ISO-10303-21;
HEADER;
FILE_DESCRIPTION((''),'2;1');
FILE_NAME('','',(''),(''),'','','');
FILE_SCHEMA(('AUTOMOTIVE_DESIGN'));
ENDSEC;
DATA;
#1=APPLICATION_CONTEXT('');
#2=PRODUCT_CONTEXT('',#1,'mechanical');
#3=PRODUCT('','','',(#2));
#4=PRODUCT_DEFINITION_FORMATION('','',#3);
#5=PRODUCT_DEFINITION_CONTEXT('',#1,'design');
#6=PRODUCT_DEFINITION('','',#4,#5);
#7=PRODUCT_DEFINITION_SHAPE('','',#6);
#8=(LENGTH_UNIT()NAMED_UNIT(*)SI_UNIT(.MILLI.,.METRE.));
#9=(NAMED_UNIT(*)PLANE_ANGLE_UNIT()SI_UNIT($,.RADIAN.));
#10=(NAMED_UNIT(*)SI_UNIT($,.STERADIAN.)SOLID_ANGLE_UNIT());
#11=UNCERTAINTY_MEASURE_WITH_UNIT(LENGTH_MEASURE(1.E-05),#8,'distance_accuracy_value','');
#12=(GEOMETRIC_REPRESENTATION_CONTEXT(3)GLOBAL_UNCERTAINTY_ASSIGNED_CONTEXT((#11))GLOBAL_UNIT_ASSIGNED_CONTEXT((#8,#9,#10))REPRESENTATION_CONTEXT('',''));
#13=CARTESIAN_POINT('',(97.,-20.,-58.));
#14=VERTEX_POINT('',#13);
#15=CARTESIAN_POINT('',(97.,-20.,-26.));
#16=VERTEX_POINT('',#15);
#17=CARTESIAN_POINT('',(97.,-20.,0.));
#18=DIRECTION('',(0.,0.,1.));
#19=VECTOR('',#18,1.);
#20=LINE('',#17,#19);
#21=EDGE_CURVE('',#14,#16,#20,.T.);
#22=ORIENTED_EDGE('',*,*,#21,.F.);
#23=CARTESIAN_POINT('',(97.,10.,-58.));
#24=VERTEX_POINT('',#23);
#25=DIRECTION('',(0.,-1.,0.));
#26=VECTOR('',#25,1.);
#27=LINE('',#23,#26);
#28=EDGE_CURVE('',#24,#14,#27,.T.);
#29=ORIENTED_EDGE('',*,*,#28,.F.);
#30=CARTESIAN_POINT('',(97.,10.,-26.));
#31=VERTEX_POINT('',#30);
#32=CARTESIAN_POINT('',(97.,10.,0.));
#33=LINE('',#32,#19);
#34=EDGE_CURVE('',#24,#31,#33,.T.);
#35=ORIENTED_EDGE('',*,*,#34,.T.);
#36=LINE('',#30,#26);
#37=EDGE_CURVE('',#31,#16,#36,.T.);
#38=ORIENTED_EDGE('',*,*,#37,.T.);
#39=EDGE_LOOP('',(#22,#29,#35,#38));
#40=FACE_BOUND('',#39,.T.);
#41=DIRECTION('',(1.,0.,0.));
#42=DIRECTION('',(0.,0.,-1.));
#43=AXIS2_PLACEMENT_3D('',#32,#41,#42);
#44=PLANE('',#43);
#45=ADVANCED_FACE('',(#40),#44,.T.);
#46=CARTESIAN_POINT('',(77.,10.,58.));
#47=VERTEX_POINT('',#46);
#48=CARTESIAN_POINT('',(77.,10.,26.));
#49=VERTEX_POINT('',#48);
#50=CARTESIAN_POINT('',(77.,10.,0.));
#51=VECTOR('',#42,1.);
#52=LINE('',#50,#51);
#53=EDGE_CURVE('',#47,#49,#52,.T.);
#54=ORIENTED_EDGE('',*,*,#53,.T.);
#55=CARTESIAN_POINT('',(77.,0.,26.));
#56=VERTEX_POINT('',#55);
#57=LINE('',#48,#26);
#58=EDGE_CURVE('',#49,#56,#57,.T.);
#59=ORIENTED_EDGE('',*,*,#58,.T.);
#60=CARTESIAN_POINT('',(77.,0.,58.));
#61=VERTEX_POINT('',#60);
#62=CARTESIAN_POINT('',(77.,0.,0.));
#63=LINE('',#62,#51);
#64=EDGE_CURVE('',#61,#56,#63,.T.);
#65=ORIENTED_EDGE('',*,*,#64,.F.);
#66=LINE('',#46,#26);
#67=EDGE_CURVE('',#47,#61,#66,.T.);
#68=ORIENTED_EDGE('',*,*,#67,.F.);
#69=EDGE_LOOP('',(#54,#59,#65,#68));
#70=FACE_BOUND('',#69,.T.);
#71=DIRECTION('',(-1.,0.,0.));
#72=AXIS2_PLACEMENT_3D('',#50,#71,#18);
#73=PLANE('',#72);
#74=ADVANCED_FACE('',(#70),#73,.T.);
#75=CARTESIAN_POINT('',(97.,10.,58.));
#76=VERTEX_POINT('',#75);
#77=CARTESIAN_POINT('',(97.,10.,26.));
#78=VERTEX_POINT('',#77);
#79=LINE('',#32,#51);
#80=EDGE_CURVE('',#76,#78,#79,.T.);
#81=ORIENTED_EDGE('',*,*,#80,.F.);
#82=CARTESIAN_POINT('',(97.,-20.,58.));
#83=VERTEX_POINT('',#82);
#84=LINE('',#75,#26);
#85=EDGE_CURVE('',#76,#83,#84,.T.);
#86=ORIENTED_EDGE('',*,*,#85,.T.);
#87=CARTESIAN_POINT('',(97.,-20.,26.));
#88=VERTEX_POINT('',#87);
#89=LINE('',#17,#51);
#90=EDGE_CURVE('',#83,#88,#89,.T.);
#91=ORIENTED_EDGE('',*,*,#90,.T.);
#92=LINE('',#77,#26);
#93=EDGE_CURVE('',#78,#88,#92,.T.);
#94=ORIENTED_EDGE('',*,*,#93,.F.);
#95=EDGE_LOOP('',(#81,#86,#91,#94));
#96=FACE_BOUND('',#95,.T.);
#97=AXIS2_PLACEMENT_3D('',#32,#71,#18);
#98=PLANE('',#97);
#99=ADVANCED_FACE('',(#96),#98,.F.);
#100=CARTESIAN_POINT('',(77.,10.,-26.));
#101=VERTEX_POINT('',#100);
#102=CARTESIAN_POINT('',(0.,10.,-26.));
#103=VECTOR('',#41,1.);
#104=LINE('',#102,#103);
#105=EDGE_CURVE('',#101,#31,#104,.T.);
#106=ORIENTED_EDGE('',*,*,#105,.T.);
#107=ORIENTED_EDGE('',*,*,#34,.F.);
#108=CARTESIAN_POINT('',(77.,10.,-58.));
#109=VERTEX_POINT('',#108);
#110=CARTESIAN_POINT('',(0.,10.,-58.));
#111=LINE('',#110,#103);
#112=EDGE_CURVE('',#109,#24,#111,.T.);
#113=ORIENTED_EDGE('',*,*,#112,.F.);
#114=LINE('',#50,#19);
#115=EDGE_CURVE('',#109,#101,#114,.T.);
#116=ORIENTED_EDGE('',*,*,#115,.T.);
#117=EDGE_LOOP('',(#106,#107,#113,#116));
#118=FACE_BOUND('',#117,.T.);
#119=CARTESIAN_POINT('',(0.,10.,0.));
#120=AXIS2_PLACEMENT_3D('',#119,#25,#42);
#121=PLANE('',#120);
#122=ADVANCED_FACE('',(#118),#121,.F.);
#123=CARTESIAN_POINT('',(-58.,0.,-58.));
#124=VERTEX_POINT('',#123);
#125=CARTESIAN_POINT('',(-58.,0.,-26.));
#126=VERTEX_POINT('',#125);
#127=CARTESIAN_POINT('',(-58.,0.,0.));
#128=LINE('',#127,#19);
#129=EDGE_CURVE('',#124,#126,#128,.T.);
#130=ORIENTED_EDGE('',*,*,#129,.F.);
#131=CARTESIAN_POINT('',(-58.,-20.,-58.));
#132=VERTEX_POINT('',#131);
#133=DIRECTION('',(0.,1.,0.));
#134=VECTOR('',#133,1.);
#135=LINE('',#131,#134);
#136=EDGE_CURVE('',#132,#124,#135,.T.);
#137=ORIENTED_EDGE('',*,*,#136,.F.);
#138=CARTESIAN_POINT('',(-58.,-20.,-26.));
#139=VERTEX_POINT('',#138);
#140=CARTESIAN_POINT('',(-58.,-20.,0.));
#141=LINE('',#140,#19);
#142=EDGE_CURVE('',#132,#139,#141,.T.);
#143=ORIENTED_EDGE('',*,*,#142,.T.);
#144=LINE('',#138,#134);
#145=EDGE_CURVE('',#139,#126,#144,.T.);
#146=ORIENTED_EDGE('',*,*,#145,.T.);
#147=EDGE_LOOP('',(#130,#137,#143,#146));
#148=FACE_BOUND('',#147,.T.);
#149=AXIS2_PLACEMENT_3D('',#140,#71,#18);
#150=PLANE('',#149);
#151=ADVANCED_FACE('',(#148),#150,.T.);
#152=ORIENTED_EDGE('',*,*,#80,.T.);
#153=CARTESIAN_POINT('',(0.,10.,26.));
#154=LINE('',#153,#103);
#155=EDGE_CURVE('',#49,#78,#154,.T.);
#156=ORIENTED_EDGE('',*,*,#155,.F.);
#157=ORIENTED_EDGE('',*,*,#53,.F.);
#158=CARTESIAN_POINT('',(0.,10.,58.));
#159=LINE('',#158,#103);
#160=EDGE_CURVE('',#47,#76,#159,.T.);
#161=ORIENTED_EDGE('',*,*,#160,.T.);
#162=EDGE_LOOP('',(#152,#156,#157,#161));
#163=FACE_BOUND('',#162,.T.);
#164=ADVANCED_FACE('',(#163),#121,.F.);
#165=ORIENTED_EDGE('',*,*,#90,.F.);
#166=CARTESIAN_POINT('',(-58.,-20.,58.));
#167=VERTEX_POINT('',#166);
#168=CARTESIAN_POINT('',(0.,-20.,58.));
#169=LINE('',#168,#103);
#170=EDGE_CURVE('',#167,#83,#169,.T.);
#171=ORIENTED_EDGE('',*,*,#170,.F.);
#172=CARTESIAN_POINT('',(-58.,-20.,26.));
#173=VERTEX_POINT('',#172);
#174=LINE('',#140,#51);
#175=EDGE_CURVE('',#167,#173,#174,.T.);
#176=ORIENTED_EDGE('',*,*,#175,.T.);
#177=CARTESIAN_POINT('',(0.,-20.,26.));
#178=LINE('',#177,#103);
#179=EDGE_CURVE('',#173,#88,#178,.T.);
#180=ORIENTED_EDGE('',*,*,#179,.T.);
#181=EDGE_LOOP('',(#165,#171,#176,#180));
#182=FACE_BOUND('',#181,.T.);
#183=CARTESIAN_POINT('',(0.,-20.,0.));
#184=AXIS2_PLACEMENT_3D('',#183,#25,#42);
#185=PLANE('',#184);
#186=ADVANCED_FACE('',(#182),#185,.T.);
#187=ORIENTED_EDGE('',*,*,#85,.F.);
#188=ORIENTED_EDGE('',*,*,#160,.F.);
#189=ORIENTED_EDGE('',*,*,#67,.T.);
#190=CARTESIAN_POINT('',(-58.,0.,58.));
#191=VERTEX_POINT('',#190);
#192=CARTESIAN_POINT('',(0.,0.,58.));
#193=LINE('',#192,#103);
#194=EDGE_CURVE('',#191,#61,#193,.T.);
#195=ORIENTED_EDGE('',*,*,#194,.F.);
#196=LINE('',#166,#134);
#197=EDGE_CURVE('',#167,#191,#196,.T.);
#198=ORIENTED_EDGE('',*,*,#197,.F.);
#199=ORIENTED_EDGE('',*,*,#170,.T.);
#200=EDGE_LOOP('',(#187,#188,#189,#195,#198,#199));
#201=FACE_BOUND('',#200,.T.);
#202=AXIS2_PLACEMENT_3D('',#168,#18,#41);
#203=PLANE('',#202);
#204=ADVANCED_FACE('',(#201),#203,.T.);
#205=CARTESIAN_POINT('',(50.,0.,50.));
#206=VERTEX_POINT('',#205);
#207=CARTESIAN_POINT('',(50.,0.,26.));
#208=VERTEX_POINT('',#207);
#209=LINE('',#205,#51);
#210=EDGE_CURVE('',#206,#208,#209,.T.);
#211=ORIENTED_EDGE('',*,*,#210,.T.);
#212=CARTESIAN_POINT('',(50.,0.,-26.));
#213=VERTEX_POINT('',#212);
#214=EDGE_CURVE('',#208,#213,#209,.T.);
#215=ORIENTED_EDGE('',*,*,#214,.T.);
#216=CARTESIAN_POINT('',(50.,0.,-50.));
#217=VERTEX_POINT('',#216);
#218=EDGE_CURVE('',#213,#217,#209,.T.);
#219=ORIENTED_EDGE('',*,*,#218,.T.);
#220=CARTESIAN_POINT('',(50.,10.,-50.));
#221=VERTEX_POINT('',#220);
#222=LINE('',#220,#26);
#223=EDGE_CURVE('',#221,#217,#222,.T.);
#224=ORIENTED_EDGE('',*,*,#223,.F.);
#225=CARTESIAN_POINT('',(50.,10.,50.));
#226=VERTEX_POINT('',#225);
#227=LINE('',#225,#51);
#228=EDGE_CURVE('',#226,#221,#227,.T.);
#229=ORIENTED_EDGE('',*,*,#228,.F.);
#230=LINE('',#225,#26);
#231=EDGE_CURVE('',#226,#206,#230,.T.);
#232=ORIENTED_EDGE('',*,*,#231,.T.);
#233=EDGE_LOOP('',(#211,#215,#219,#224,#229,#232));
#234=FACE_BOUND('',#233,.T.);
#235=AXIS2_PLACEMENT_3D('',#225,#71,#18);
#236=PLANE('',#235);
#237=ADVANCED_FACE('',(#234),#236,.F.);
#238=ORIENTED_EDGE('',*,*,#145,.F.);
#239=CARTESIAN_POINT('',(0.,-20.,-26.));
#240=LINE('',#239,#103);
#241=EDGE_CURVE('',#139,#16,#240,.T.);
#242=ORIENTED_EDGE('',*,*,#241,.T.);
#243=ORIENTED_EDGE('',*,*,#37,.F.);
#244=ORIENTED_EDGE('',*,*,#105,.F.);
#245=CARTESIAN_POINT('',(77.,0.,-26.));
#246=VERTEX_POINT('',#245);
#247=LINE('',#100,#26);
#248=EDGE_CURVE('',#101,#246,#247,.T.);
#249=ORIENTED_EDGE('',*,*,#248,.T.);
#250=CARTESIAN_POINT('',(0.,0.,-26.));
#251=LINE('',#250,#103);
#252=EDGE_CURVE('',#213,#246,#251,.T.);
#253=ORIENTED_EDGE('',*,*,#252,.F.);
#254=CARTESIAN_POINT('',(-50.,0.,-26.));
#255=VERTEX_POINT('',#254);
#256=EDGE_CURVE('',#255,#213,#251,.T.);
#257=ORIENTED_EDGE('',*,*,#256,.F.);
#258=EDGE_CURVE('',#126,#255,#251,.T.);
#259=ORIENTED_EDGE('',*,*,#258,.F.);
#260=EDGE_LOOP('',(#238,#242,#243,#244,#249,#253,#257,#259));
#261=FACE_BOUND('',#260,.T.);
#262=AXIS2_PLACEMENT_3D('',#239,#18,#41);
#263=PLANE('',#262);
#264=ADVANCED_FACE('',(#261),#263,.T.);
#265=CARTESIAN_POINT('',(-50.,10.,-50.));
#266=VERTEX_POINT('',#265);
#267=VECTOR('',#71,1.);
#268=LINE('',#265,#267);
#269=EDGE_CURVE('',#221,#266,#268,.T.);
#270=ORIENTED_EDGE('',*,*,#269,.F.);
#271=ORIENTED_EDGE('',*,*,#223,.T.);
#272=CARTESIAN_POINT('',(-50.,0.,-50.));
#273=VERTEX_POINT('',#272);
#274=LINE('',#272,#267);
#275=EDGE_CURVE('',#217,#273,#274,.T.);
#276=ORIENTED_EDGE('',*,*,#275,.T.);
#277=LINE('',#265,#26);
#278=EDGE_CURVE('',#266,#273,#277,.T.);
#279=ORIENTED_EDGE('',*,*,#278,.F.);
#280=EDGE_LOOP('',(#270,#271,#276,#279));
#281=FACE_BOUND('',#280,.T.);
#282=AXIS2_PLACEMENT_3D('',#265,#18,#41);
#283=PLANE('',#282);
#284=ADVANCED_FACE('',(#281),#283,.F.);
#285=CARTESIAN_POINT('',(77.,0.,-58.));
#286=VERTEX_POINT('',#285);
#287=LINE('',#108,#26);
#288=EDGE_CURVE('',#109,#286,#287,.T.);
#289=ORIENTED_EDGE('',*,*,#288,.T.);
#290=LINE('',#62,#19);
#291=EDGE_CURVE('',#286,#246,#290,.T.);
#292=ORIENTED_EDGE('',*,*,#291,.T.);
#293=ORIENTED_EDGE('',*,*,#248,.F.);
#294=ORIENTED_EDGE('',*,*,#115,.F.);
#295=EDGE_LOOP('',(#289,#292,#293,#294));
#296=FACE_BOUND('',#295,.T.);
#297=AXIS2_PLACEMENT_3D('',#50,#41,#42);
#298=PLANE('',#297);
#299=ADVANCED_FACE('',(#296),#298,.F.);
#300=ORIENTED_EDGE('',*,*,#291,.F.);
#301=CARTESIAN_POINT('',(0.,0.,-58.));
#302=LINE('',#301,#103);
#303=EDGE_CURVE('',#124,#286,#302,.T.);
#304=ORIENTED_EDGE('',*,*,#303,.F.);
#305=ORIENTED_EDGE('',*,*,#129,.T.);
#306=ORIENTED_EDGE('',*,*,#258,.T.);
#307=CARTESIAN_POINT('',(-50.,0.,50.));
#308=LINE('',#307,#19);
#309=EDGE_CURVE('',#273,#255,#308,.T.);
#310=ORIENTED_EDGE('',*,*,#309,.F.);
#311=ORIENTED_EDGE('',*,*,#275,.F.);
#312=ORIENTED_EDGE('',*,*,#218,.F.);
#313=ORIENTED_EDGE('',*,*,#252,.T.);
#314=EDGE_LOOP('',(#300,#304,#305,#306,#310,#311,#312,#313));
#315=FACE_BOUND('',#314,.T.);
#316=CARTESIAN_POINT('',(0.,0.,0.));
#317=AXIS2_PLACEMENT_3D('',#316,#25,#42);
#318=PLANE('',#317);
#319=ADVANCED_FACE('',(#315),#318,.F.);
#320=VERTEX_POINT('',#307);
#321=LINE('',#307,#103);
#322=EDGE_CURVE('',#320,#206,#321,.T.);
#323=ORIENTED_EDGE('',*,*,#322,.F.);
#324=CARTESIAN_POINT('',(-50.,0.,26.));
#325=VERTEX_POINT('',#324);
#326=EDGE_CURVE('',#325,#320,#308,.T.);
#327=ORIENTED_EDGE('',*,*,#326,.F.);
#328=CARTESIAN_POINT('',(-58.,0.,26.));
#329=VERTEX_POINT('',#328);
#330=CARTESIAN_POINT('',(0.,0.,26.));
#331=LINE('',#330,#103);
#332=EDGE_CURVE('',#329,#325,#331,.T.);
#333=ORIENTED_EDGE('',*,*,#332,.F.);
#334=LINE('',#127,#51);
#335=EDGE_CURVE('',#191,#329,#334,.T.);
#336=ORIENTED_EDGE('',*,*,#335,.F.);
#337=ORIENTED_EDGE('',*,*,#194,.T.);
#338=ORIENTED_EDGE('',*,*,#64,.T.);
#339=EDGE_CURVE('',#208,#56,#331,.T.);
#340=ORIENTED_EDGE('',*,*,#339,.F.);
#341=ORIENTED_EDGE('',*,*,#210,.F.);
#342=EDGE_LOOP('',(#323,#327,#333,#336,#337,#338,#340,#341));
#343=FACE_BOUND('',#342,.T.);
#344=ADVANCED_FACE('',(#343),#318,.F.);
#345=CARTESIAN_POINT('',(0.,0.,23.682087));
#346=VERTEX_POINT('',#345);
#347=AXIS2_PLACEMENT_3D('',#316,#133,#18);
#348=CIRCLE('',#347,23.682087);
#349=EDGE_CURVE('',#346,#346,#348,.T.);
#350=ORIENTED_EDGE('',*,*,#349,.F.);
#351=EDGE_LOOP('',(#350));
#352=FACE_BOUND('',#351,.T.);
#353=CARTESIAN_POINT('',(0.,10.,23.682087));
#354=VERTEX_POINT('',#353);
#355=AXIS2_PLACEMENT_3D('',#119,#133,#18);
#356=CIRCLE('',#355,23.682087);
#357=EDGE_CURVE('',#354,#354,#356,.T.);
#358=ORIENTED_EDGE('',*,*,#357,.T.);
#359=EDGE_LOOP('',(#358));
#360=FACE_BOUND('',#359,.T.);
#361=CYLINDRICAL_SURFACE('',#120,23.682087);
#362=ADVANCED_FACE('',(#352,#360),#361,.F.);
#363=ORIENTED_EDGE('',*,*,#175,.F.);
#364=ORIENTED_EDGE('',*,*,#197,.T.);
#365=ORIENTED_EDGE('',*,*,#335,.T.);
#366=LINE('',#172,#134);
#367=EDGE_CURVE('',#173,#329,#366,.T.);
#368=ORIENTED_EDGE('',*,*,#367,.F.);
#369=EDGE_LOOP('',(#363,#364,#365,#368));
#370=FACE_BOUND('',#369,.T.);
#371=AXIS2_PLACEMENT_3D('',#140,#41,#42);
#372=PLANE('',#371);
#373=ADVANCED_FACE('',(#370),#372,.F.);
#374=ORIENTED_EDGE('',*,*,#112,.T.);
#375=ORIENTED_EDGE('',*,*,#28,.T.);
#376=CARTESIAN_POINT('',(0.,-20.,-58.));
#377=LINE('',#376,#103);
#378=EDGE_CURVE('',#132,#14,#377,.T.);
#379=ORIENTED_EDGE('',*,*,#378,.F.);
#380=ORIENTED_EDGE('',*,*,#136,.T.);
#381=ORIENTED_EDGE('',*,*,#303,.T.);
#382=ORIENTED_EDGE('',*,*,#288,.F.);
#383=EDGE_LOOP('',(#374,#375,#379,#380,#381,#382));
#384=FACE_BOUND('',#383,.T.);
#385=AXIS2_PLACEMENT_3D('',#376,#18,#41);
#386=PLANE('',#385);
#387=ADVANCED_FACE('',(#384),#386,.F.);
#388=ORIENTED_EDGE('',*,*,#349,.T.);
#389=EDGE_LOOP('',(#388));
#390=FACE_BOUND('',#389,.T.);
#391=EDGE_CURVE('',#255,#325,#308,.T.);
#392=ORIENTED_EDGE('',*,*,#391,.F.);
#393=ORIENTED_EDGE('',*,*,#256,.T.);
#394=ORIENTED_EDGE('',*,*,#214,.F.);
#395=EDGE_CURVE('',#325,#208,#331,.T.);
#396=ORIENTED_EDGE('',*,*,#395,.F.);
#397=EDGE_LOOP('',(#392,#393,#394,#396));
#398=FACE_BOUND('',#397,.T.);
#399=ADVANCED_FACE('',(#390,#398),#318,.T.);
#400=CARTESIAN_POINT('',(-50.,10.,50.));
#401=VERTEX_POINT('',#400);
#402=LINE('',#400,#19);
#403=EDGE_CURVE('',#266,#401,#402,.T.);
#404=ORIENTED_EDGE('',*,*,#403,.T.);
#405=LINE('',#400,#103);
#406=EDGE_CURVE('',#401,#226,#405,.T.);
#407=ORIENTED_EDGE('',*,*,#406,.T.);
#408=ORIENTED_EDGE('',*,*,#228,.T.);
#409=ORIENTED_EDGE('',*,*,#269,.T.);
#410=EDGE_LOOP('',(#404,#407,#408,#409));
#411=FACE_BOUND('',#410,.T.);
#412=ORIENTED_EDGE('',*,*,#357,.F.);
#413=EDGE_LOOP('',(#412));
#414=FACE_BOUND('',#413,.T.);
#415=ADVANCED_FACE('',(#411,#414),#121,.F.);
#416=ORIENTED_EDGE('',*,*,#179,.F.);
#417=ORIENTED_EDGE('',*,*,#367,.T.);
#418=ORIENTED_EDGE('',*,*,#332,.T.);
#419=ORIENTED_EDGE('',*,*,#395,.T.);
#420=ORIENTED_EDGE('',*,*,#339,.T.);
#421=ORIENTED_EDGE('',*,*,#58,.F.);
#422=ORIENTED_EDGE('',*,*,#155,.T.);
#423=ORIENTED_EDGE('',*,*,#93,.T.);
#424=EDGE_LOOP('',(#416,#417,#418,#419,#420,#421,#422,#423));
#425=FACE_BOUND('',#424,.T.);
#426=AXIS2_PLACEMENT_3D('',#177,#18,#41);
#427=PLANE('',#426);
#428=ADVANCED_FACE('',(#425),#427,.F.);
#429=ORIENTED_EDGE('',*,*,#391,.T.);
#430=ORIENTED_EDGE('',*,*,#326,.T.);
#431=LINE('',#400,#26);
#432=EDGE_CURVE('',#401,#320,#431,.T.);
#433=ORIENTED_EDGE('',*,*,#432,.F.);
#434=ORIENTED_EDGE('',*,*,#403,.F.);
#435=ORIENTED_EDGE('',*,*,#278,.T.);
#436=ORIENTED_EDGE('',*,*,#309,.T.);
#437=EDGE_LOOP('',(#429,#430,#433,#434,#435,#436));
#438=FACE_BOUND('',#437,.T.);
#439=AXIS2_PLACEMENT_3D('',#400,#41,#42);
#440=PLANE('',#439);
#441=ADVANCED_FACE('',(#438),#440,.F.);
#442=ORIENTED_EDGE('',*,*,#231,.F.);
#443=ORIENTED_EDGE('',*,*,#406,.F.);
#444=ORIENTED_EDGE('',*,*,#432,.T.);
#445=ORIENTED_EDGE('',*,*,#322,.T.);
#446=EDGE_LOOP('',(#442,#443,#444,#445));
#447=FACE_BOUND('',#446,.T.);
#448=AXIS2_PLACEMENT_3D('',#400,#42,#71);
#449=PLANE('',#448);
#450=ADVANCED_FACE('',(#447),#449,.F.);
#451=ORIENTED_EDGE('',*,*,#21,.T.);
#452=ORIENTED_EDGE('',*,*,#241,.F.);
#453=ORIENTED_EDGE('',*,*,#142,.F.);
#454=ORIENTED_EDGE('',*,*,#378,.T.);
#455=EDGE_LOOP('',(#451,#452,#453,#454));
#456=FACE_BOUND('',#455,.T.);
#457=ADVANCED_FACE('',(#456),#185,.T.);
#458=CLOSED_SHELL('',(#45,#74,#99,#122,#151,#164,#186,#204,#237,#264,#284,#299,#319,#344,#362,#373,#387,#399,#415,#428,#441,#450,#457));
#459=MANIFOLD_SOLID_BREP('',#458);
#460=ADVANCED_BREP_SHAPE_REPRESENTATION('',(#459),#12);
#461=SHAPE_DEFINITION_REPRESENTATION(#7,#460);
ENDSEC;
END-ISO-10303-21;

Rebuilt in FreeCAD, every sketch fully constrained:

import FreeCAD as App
import Part
import Sketcher

V = App.Vector


def add_polygon(sketch, points):
    """Adds a closed chain of lines whose ends are joined by coincident constraints."""
    first, n = sketch.GeometryCount, len(points)
    for a, b in zip(points, points[1:] + points[:1]):
        sketch.addGeometry(Part.LineSegment(App.Vector(*a, 0), App.Vector(*b, 0)), False)
    for i in range(n):
        sketch.addConstraint(Sketcher.Constraint("Coincident", first + i, 2, first + (i + 1) % n, 1))

doc = App.newDocument("Part")
body = doc.addObject("PartDesign::Body", "Body")

# Sketch on XZ plane
sketch1 = doc.addObject("Sketcher::SketchObject", "Sketch")
body.addObject(sketch1)
sketch1.AttachmentSupport = (doc.XZ_Plane, [""])
sketch1.MapMode = "FlatFace"
add_polygon(sketch1, [(-50, -50), (-50, 50), (50, 50), (50, -50)])  # lines 0-3
sketch1.addGeometry(Part.Circle(V(0, 0, 0), V(0, 0, 1), 24), False)  # 4
sketch1.addConstraint(Sketcher.Constraint("Vertical", 0))
sketch1.addConstraint(Sketcher.Constraint("Horizontal", 1))
sketch1.addConstraint(Sketcher.Constraint("Vertical", 2))
sketch1.addConstraint(Sketcher.Constraint("Horizontal", 3))
sketch1.addConstraint(Sketcher.Constraint("Coincident", 4, 3, -1, 1))
sketch1.addConstraint(Sketcher.Constraint("Symmetric", 0, 2, 2, 2, -1, 1))
sketch1.addConstraint(Sketcher.Constraint("Equal", 3, 0))
sketch1.addConstraint(Sketcher.Constraint("DistanceX", 1, 1, 1, 2, 100.0))
sketch1.addConstraint(Sketcher.Constraint("Diameter", 4, 47.364174))
pad1 = doc.addObject("PartDesign::Pad", "Pad")
body.addObject(pad1)
pad1.Profile = sketch1
pad1.Length = 10
pad1.Reversed = True

# Sketch on XZ plane
sketch2 = doc.addObject("Sketcher::SketchObject", "Sketch001")
body.addObject(sketch2)
sketch2.AttachmentSupport = (doc.XZ_Plane, [""])
sketch2.MapMode = "FlatFace"
add_polygon(sketch2, [(77, 26), (77, 58), (-58, 58), (-58, 26)])  # lines 0-3
add_polygon(sketch2, [(-58, -26), (-58, -58), (77, -58), (77, -26)])  # lines 4-7
sketch2.addConstraint(Sketcher.Constraint("Vertical", 0))
sketch2.addConstraint(Sketcher.Constraint("Horizontal", 1))
sketch2.addConstraint(Sketcher.Constraint("Vertical", 2))
sketch2.addConstraint(Sketcher.Constraint("Horizontal", 3))
sketch2.addConstraint(Sketcher.Constraint("Vertical", 4))
sketch2.addConstraint(Sketcher.Constraint("Horizontal", 5))
sketch2.addConstraint(Sketcher.Constraint("Vertical", 6))
sketch2.addConstraint(Sketcher.Constraint("Horizontal", 7))
sketch2.addConstraint(Sketcher.Constraint("Symmetric", 1, 2, 4, 2, -1))
sketch2.addConstraint(Sketcher.Constraint("Symmetric", 3, 2, 6, 2, -1))
sketch2.addConstraint(Sketcher.Constraint("DistanceX", 1, 2, 1, 1, 135.0))
sketch2.addConstraint(Sketcher.Constraint("DistanceY", 0, 1, 0, 2, 32.0))
sketch2.addConstraint(Sketcher.Constraint("DistanceX", -1, 1, 0, 2, 77.0))
sketch2.addConstraint(Sketcher.Constraint("DistanceY", -1, 1, 0, 2, 58.0))
pad2 = doc.addObject("PartDesign::Pad", "Pad001")
body.addObject(pad2)
pad2.Profile = sketch2
pad2.Length = 20

# Sketch on XZ plane
sketch3 = doc.addObject("Sketcher::SketchObject", "Sketch002")
body.addObject(sketch3)
sketch3.AttachmentSupport = (doc.XZ_Plane, [""])
sketch3.MapMode = "FlatFace"
add_polygon(sketch3, [(77, -26), (77, -58), (97, -58), (97, -26)])  # lines 0-3
add_polygon(sketch3, [(77, 58), (77, 26), (97, 26), (97, 58)])  # lines 4-7
sketch3.addConstraint(Sketcher.Constraint("Vertical", 0))
sketch3.addConstraint(Sketcher.Constraint("Horizontal", 1))
sketch3.addConstraint(Sketcher.Constraint("Vertical", 2))
sketch3.addConstraint(Sketcher.Constraint("Horizontal", 3))
sketch3.addConstraint(Sketcher.Constraint("Vertical", 4))
sketch3.addConstraint(Sketcher.Constraint("Horizontal", 5))
sketch3.addConstraint(Sketcher.Constraint("Vertical", 6))
sketch3.addConstraint(Sketcher.Constraint("Horizontal", 7))
sketch3.addConstraint(Sketcher.Constraint("Symmetric", 3, 2, 4, 2, -1))
sketch3.addConstraint(Sketcher.Constraint("Symmetric", 1, 2, 6, 2, -1))
sketch3.addConstraint(Sketcher.Constraint("DistanceX", 1, 1, 1, 2, 20.0))
sketch3.addConstraint(Sketcher.Constraint("DistanceY", 0, 2, 0, 1, 32.0))
sketch3.addConstraint(Sketcher.Constraint("DistanceX", -1, 1, 0, 2, 77.0))
sketch3.addConstraint(Sketcher.Constraint("DistanceY", 0, 2, -1, 1, 58.0))
pad3 = doc.addObject("PartDesign::Pad", "Pad002")
body.addObject(pad3)
pad3.Profile = sketch3
pad3.Type = "TwoLengths"
pad3.Length = 20
pad3.Length2 = 10

doc.recompute()
